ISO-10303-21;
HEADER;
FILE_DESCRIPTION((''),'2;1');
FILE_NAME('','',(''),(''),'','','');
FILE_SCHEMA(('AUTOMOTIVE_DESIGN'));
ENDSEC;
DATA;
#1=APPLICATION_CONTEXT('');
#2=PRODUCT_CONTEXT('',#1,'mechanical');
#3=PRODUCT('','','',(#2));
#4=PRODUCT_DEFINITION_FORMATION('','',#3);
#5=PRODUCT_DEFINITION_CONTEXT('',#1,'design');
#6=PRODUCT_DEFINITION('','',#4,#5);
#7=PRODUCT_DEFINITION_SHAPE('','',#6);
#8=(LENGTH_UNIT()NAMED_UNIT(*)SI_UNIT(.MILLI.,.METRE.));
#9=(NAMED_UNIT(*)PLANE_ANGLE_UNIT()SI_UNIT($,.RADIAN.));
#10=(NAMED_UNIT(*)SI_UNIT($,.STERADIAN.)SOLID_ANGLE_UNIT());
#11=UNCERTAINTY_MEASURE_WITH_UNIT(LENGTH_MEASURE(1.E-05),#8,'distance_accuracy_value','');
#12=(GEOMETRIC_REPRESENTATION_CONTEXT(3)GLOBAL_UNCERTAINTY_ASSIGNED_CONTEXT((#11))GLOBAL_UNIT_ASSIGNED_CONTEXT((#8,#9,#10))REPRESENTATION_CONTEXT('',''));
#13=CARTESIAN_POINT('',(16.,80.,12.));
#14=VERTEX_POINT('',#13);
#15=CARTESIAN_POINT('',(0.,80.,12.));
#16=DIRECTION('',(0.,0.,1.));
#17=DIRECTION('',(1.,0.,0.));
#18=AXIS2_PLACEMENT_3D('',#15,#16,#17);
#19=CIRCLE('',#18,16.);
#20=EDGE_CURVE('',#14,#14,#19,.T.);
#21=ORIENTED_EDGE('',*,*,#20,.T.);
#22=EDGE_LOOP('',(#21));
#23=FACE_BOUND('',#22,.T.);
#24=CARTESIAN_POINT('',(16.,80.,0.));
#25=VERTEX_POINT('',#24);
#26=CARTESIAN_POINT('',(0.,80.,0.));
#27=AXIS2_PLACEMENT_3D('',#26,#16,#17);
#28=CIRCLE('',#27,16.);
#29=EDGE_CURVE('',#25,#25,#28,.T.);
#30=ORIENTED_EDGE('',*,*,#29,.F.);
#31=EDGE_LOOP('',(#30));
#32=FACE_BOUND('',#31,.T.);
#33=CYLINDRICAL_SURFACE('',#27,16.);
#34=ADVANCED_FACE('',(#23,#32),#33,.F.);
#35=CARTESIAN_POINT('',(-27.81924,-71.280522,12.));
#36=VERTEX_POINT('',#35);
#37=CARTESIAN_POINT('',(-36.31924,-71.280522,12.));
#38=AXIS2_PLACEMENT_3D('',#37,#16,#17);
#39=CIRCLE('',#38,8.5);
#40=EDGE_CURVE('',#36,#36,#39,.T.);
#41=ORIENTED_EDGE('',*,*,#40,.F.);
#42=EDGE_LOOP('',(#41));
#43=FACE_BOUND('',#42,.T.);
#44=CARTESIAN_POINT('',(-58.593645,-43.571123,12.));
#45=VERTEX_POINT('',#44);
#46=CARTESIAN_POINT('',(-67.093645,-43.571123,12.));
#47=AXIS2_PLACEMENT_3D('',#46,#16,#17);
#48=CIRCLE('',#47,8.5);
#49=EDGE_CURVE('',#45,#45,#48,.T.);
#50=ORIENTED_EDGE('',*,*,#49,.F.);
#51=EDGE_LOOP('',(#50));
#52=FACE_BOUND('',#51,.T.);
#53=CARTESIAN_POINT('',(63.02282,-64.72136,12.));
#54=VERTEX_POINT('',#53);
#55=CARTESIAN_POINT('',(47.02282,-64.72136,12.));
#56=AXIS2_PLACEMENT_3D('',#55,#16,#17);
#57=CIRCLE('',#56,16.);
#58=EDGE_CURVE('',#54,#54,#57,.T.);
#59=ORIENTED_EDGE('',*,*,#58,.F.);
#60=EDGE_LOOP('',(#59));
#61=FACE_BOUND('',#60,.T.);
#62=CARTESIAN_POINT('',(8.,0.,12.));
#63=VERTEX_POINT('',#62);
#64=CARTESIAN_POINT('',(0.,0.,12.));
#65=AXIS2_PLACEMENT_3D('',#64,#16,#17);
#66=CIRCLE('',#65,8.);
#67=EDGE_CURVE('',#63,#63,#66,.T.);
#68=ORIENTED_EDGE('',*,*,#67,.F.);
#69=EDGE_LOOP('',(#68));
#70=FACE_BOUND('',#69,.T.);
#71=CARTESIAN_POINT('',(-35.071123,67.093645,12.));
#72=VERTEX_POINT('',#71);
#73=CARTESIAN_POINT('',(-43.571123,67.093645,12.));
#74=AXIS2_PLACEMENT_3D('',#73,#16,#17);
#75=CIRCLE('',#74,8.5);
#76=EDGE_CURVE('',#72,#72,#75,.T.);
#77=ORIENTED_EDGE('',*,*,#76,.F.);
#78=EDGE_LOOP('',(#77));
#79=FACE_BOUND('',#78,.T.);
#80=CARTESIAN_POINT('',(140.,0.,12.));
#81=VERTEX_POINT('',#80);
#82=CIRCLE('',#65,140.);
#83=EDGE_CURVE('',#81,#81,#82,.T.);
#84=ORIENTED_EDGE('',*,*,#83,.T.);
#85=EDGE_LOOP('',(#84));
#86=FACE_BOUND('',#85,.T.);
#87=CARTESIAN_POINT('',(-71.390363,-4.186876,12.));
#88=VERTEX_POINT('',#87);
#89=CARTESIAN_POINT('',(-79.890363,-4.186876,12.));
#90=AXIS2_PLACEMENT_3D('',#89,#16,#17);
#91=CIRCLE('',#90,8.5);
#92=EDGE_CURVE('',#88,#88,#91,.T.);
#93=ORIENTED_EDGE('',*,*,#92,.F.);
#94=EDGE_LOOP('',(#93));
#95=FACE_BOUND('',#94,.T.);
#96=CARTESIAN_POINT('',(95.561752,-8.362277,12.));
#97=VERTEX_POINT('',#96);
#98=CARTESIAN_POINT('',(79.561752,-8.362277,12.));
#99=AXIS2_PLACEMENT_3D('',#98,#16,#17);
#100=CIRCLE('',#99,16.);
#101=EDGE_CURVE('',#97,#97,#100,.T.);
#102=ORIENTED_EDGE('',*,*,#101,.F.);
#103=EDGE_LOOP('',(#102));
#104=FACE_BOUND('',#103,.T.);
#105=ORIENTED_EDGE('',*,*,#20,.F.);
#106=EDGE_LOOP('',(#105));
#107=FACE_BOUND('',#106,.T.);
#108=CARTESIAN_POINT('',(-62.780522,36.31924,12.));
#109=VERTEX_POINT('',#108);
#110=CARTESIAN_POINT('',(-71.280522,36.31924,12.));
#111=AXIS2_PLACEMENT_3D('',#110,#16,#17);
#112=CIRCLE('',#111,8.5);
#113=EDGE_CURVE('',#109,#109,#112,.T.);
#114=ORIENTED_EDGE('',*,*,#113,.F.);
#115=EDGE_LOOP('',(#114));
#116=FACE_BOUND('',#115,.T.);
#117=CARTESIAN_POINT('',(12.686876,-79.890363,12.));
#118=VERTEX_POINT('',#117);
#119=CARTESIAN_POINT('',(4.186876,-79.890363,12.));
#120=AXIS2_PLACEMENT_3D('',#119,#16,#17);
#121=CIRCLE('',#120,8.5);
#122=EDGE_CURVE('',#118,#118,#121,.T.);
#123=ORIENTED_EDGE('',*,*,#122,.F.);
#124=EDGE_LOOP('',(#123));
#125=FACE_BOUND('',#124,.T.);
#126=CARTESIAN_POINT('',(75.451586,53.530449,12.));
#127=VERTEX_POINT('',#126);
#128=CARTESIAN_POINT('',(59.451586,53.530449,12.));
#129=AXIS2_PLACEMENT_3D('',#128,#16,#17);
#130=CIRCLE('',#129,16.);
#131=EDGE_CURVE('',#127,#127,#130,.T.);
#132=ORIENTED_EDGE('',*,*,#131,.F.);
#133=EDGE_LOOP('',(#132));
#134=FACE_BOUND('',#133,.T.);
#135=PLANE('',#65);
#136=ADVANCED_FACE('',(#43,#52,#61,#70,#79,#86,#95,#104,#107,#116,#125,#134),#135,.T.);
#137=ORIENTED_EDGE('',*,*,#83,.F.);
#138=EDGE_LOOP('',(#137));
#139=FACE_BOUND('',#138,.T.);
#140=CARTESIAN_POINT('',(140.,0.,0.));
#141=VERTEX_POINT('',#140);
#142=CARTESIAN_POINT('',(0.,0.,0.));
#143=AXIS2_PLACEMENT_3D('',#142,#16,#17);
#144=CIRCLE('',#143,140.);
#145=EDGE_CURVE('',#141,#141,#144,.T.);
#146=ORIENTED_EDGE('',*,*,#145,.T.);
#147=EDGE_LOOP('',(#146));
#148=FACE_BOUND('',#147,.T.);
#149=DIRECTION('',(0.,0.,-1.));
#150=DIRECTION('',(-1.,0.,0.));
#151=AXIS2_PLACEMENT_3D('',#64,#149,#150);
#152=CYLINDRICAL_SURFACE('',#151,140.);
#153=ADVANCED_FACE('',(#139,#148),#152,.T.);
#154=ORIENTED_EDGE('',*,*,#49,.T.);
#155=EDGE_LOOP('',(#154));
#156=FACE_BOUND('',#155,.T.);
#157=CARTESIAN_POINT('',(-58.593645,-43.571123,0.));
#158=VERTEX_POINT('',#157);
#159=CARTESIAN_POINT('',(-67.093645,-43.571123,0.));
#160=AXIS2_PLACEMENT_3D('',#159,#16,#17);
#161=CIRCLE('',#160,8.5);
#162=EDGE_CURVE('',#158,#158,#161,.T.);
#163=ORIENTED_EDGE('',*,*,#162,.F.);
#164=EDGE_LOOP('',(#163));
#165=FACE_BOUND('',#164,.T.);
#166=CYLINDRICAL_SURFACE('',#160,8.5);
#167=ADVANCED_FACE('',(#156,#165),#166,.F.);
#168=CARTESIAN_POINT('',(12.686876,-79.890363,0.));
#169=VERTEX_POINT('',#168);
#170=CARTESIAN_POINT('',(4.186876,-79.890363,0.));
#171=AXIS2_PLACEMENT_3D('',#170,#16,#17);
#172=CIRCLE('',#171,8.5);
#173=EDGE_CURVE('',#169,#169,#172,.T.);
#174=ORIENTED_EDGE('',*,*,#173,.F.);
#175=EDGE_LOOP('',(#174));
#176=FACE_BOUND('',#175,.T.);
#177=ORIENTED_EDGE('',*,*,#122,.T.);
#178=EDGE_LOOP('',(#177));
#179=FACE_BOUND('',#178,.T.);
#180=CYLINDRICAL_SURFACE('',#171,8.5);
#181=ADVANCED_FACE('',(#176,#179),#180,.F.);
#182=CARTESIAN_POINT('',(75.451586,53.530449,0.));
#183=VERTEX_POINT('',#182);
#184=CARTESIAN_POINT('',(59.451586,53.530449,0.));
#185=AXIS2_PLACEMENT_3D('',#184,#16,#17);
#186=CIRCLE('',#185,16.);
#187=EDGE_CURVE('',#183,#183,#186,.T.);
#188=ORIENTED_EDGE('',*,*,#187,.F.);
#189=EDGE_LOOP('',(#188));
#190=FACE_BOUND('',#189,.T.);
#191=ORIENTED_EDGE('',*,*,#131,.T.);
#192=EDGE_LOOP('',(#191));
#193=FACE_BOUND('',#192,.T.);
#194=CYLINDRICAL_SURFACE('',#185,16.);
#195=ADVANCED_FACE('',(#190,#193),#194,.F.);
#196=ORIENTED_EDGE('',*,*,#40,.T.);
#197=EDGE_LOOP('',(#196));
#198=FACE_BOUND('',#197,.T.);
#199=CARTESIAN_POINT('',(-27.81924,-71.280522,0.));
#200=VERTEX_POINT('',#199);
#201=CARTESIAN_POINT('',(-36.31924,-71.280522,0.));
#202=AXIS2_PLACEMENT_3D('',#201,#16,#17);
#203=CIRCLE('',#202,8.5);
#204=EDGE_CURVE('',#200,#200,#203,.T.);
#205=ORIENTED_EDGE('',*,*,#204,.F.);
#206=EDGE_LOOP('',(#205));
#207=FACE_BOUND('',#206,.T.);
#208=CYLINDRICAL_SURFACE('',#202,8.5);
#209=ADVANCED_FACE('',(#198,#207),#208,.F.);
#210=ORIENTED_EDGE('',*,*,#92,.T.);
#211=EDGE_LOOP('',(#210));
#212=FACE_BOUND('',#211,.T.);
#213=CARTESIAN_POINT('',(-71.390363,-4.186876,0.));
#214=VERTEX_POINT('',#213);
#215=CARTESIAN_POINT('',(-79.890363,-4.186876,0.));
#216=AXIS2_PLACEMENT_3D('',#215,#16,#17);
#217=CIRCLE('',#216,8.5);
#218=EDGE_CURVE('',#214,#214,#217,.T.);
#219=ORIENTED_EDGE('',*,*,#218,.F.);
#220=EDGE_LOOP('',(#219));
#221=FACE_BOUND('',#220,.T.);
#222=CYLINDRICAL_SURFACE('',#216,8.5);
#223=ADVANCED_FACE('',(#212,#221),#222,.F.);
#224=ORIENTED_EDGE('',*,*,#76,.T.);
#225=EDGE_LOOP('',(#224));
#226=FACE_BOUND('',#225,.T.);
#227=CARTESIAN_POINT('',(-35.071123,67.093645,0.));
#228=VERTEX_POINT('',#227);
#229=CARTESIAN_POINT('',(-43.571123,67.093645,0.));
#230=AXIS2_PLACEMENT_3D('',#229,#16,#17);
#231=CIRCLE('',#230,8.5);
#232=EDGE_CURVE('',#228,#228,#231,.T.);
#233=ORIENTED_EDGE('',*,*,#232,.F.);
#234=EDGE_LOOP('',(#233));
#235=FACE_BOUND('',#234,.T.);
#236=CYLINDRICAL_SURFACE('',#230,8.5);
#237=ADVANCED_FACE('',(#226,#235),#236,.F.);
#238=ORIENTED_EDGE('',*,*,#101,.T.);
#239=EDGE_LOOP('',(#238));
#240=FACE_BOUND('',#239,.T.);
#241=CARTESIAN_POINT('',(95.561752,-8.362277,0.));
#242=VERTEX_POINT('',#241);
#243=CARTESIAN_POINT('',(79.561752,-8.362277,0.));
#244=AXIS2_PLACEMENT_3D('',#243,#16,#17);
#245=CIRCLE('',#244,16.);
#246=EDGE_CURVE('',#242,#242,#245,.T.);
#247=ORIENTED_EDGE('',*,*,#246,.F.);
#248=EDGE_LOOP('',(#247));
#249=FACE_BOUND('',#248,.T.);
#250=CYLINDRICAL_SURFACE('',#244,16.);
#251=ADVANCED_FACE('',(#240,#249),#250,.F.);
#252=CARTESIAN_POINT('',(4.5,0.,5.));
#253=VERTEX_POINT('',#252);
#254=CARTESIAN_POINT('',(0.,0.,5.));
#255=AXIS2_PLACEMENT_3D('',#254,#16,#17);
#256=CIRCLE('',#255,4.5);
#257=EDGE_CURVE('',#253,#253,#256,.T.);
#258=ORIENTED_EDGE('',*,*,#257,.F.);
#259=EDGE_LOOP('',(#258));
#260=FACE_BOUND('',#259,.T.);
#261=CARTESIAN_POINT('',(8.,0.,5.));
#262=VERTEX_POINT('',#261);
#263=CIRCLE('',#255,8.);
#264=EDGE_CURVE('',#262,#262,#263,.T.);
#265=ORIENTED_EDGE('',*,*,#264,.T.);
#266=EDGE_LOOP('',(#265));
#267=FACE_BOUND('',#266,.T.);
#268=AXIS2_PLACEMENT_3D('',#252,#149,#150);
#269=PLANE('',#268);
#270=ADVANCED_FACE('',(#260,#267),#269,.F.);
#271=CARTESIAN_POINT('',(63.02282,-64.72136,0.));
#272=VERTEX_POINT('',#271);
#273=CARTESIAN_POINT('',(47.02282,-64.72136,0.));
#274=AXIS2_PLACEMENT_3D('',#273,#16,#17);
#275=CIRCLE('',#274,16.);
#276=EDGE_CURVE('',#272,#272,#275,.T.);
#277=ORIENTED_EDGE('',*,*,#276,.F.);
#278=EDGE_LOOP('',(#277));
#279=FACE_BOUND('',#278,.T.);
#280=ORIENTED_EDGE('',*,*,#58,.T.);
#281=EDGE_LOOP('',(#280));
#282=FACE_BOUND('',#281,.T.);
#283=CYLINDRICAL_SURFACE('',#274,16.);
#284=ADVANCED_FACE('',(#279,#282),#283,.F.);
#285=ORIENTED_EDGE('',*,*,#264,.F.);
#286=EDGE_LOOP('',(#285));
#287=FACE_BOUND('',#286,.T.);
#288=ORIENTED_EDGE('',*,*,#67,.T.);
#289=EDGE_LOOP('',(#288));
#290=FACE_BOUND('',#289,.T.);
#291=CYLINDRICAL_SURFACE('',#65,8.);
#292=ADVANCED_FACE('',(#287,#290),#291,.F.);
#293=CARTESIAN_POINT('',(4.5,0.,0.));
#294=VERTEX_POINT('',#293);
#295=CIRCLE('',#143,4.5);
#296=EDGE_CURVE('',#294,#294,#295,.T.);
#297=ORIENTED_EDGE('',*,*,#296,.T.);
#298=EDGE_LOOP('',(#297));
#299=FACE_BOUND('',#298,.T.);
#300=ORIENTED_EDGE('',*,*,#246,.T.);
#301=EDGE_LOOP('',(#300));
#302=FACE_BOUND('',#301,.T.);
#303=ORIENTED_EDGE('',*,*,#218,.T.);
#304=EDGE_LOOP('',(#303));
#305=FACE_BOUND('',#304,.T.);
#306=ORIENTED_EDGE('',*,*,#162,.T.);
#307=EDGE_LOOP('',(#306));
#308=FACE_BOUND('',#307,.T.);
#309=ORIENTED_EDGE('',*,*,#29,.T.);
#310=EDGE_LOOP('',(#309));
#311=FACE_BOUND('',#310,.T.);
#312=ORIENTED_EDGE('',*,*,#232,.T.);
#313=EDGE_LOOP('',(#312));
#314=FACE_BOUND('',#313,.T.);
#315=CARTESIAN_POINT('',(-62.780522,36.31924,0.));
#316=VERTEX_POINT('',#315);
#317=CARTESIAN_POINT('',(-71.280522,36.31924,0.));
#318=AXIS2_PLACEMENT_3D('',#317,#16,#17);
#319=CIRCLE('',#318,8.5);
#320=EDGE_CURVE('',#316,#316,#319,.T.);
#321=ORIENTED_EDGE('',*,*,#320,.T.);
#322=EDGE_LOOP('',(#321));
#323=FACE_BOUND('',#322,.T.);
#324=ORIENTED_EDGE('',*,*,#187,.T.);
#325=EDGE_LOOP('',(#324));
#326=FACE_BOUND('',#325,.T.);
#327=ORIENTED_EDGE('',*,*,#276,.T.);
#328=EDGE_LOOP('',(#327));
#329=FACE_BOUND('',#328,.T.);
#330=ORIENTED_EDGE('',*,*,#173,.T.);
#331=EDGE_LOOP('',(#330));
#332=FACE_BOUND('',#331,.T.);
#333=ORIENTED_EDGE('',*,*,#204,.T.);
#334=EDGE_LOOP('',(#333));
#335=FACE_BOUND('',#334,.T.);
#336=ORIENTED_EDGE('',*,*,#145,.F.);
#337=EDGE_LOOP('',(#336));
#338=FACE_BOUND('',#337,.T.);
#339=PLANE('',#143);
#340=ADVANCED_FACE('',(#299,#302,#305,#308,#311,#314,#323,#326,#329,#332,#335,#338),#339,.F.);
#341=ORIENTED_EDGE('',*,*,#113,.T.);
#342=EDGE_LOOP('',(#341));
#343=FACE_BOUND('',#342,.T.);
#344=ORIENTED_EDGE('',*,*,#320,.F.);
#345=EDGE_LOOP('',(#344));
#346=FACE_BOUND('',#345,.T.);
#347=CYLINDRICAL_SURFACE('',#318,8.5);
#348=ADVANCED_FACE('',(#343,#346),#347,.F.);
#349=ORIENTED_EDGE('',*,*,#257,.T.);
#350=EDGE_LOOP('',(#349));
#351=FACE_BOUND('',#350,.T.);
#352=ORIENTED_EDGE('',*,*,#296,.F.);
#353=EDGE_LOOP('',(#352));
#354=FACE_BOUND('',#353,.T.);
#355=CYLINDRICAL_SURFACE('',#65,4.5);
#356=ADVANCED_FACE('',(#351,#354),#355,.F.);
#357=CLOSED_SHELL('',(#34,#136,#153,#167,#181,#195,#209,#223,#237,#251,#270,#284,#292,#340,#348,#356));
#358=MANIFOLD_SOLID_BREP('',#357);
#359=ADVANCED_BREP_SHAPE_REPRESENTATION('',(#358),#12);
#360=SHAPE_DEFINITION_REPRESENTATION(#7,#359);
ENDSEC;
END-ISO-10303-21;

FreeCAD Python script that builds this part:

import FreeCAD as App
import Part
import Sketcher
Q = App.Units.Quantity

doc = App.newDocument("Part")
params = doc.addObject("Spreadsheet::Sheet", "Params")
for row, (alias, value) in enumerate([
    ("sketch1_diameter", "280 mm"),
    ("pad1_length", "12 mm"),
    ("sketch2_diameter", "32 mm"),
    ("sketch2_diameter2", "17 mm"),
    ("sketch3_diameter", "9 mm"),
    ("hole_diameter", "9 mm"),
    ("hole_cbore_diameter", "16 mm"),
    ("hole_cbore_depth", "7 mm"),
], start=1):
    params.set(f"A{row}", alias)
    params.set(f"B{row}", "=" + value)
    params.setAlias(f"B{row}", alias)

body = doc.addObject("PartDesign::Body", "Body")

sketch1 = doc.addObject("Sketcher::SketchObject", "Sketch")
body.addObject(sketch1)
sketch1.AttachmentSupport = (doc.XY_Plane, [""])
sketch1.MapMode = "FlatFace"
sketch1.addGeometry(Part.Circle(App.Vector(0, 0, 0), App.Vector(0, 0, 1), 140), False)
sketch1.addConstraint(Sketcher.Constraint("Coincident", 0, 3, -1, 1))
sketch1.addConstraint(Sketcher.Constraint("Diameter", 0, Q("280 mm")))
sketch1.setExpression("Constraints[1]", "Params.sketch1_diameter")
pad1 = doc.addObject("PartDesign::Pad", "Pad")
body.addObject(pad1)
pad1.Profile = sketch1
pad1.setExpression("Length", "Params.pad1_length")

sketch2 = doc.addObject("Sketcher::SketchObject", "Sketch001")
body.addObject(sketch2)
sketch2.AttachmentSupport = (doc.XY_Plane, [""])
sketch2.MapMode = "FlatFace"
sketch2.AttachmentOffset = App.Placement(App.Vector(0, 0, 12), App.Rotation())
sketch2.addGeometry(Part.Circle(App.Vector(59, 54, 0), App.Vector(0, 0, 1), 16), False)
sketch2.addGeometry(Part.Circle(App.Vector(0, 80, 0), App.Vector(0, 0, 1), 16), False)
sketch2.addGeometry(Part.Circle(App.Vector(80, -8, 0), App.Vector(0, 0, 1), 16), False)
sketch2.addGeometry(Part.Circle(App.Vector(47, -65, 0), App.Vector(0, 0, 1), 16), False)
sketch2.addGeometry(Part.Circle(App.Vector(4, -80, 0), App.Vector(0, 0, 1), 8), False)
sketch2.addGeometry(Part.Circle(App.Vector(-36, -71, 0), App.Vector(0, 0, 1), 8), False)
sketch2.addGeometry(Part.Circle(App.Vector(-67, -44, 0), App.Vector(0, 0, 1), 8), False)
sketch2.addGeometry(Part.Circle(App.Vector(-80, -4, 0), App.Vector(0, 0, 1), 8), False)
sketch2.addGeometry(Part.Circle(App.Vector(-71, 36, 0), App.Vector(0, 0, 1), 8), False)
sketch2.addGeometry(Part.Circle(App.Vector(-44, 67, 0), App.Vector(0, 0, 1), 8), False)
sketch2.addConstraint(Sketcher.Constraint("Equal", 0, 1))
sketch2.addConstraint(Sketcher.Constraint("Equal", 1, 2))
sketch2.addConstraint(Sketcher.Constraint("Equal", 2, 3))
sketch2.addConstraint(Sketcher.Constraint("Equal", 4, 5))
sketch2.addConstraint(Sketcher.Constraint("Equal", 5, 6))
sketch2.addConstraint(Sketcher.Constraint("Equal", 6, 7))
sketch2.addConstraint(Sketcher.Constraint("Equal", 7, 8))
sketch2.addConstraint(Sketcher.Constraint("Equal", 8, 9))
sketch2.addConstraint(Sketcher.Constraint("PointOnObject", 1, 3, -2))
sketch2.addConstraint(Sketcher.Constraint("Diameter", 0, Q("32 mm")))
sketch2.addConstraint(Sketcher.Constraint("Diameter", 4, Q("17 mm")))
sketch2.addConstraint(Sketcher.Constraint("DistanceY", -1, 1, 1, 3, Q("80 mm")))
sketch2.addConstraint(Sketcher.Constraint("DistanceY", 5, 3, 6, 3, Q("27.709399 mm")))
sketch2.addConstraint(Sketcher.Constraint("DistanceX", 8, 3, 9, 3, Q("27.709399 mm")))
sketch2.addConstraint(Sketcher.Constraint("DistanceY", -1, 1, 0, 3, Q("53.530449 mm")))
sketch2.addConstraint(Sketcher.Constraint("DistanceX", -1, 1, 2, 3, Q("79.561752 mm")))
sketch2.addConstraint(Sketcher.Constraint("DistanceX", -1, 1, 3, 3, Q("47.02282 mm")))
sketch2.addConstraint(Sketcher.Constraint("DistanceY", 3, 3, -1, 1, Q("64.72136 mm")))
sketch2.addConstraint(Sketcher.Constraint("DistanceX", 5, 3, -1, 1, Q("36.31924 mm")))
sketch2.addConstraint(Sketcher.Constraint("DistanceY", 5, 3, -1, 1, Q("71.280522 mm")))
sketch2.addConstraint(Sketcher.Constraint("DistanceX", 8, 3, -1, 1, Q("71.280522 mm")))
sketch2.addConstraint(Sketcher.Constraint("DistanceY", -1, 1, 8, 3, Q("36.31924 mm")))
sketch2.addConstraint(Sketcher.Constraint("DistanceX", 4, 3, 0, 3, Q("55.26471 mm")))
sketch2.addConstraint(Sketcher.Constraint("DistanceY", 4, 3, 0, 3, Q("133.420811 mm")))
sketch2.addConstraint(Sketcher.Constraint("DistanceX", 6, 3, 4, 3, Q("71.280522 mm")))
sketch2.addConstraint(Sketcher.Constraint("DistanceX", 7, 3, 4, 3, Q("84.077239 mm")))
sketch2.addConstraint(Sketcher.Constraint("DistanceX", 7, 3, 8, 3, Q("8.609841 mm")))
sketch2.addConstraint(Sketcher.Constraint("DistanceY", 7, 3, 9, 3, Q("71.280522 mm")))
sketch2.addConstraint(Sketcher.Constraint("DistanceY", 6, 3, 9, 3, Q("110.664768 mm")))
sketch2.addConstraint(Sketcher.Constraint("DistanceY", 2, 3, -1, 1, Q("8.362277 mm")))
sketch2.setExpression("Constraints[9]", "Params.sketch2_diameter")
sketch2.setExpression("Constraints[10]", "Params.sketch2_diameter2")
pocket1 = doc.addObject("PartDesign::Pocket", "Pocket")
body.addObject(pocket1)
pocket1.Profile = sketch2
pocket1.Type = "ThroughAll"

sketch3 = doc.addObject("Sketcher::SketchObject", "Sketch002")
body.addObject(sketch3)
sketch3.AttachmentSupport = (doc.XY_Plane, [""])
sketch3.MapMode = "FlatFace"
sketch3.AttachmentOffset = App.Placement(App.Vector(0, 0, 12), App.Rotation())
sketch3.addGeometry(Part.Circle(App.Vector(0, 0, 0), App.Vector(0, 0, 1), 4.5), False)
sketch3.addConstraint(Sketcher.Constraint("Coincident", 0, 3, -1, 1))
sketch3.addConstraint(Sketcher.Constraint("Diameter", 0, Q("9 mm")))
sketch3.setExpression("Constraints[1]", "Params.sketch3_diameter")
doc.recompute()
hole = doc.addObject("PartDesign::Hole", "Hole")
body.addObject(hole)
hole.Profile = sketch3
hole.ThreadType = "None"
hole.setExpression("Diameter", "Params.hole_diameter")
hole.DepthType = "ThroughAll"
hole.HoleCutType = "Counterbore"
hole.setExpression("HoleCutDiameter", "Params.hole_cbore_diameter")
hole.setExpression("HoleCutDepth", "Params.hole_cbore_depth")

doc.recompute()
